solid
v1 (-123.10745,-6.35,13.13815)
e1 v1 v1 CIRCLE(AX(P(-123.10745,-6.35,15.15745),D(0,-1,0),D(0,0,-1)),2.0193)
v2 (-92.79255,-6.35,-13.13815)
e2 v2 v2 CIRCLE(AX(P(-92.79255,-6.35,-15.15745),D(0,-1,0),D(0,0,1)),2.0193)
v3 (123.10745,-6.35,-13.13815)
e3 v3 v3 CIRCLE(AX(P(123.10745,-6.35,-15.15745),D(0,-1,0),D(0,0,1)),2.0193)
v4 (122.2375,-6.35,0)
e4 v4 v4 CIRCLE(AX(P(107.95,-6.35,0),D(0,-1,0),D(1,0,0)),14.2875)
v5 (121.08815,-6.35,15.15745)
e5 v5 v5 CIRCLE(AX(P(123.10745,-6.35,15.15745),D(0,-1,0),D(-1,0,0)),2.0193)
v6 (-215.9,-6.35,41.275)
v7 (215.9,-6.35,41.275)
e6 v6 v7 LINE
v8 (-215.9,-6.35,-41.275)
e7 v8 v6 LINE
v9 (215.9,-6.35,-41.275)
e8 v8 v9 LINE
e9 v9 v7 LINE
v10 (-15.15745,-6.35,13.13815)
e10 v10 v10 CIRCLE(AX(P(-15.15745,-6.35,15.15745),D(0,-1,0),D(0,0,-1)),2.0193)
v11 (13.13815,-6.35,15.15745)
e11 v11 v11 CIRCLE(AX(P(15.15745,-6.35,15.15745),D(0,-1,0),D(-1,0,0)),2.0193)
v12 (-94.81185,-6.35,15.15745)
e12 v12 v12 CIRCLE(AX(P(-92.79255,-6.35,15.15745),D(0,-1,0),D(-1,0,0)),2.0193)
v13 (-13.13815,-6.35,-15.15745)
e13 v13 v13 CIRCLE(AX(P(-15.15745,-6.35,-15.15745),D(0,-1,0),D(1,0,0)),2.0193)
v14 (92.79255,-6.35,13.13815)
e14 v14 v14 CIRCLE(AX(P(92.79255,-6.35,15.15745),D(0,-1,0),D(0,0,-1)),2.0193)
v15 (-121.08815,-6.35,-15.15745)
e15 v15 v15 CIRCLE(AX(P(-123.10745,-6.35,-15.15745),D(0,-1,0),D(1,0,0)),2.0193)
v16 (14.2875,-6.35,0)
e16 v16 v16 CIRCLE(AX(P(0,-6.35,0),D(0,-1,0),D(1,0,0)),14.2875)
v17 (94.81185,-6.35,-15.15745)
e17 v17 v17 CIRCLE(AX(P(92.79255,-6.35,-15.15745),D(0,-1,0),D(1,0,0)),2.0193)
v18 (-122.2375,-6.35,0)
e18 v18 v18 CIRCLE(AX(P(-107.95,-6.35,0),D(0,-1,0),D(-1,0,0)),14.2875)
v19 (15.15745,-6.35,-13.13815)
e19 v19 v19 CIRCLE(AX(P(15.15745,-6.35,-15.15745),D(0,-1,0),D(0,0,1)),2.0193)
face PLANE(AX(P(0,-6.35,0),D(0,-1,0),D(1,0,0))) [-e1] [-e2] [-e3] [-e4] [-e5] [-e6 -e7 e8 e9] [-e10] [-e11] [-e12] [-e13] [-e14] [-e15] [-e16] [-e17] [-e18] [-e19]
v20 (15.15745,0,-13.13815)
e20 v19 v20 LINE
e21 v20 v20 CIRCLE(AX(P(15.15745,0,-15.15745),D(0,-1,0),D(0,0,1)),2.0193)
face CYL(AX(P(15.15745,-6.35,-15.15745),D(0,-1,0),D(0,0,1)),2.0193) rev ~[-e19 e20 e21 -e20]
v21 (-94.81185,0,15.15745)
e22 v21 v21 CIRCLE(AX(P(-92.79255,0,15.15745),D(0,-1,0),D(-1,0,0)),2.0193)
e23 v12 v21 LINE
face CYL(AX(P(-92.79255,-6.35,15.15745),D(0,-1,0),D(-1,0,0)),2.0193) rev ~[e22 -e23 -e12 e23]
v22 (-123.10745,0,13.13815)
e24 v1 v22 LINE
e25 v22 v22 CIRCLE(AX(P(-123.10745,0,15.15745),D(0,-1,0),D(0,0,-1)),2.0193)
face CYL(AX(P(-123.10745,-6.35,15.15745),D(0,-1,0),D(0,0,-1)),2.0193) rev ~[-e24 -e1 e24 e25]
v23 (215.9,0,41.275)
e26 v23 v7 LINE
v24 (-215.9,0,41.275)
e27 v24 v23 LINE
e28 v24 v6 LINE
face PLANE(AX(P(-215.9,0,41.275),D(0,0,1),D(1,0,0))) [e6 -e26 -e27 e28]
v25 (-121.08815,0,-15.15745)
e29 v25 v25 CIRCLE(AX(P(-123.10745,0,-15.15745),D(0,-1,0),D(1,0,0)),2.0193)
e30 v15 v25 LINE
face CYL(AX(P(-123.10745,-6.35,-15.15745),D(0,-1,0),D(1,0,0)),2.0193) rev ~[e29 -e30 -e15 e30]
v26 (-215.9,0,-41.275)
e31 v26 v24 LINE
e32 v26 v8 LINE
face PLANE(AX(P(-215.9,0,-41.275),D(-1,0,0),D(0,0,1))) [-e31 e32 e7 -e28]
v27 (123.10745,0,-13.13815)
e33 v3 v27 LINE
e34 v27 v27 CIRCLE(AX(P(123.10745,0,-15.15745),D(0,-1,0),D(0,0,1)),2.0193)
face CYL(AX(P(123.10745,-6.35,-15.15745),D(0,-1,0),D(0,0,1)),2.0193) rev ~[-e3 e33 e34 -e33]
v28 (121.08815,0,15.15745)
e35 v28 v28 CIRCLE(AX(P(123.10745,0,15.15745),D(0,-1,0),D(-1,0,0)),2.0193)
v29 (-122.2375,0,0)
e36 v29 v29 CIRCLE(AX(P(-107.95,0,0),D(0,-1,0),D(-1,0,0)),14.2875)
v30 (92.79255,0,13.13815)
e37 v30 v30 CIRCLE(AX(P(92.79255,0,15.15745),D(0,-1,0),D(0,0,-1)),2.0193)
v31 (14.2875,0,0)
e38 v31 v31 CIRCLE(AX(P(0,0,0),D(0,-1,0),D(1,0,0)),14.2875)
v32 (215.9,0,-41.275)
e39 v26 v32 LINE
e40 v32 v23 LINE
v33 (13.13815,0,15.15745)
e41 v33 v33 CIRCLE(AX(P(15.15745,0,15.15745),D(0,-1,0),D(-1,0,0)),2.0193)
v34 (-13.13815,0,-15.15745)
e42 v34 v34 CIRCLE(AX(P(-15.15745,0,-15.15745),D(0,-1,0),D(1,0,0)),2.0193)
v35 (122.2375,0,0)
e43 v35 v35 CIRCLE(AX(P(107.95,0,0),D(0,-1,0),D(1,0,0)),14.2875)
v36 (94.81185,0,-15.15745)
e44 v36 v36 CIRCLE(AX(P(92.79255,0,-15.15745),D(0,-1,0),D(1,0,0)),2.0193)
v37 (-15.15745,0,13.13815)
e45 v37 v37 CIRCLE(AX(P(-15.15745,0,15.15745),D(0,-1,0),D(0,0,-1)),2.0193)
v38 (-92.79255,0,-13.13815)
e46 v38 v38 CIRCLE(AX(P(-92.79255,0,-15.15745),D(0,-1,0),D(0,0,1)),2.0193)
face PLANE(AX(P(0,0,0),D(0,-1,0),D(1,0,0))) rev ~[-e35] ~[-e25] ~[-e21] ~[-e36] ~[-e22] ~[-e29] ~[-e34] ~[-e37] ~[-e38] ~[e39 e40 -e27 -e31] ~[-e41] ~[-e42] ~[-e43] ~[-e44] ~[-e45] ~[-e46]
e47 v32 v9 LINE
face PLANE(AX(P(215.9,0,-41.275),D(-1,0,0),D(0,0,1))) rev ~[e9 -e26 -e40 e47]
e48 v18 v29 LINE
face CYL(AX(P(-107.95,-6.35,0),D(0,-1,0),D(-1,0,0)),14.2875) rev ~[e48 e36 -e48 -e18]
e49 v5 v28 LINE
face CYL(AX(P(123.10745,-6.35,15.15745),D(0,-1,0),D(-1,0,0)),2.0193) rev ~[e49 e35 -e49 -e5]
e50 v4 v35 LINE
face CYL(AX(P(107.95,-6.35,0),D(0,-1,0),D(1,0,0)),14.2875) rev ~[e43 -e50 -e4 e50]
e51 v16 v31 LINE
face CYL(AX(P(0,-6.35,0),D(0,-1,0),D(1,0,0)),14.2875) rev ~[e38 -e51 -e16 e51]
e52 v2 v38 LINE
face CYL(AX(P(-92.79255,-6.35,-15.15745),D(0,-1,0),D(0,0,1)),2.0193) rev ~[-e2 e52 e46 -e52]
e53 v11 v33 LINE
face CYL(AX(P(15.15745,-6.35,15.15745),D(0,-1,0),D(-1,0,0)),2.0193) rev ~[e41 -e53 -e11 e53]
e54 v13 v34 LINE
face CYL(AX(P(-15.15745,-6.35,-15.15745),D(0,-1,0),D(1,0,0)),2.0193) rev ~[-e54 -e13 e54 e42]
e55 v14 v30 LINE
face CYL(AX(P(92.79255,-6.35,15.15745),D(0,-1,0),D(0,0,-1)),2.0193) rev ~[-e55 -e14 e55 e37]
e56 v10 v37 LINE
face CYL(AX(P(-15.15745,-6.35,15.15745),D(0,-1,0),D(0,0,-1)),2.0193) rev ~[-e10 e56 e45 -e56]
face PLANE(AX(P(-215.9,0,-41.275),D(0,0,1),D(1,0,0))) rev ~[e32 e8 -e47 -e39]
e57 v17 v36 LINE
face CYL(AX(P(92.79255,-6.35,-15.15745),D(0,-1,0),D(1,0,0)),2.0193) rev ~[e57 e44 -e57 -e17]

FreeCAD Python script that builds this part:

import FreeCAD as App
import Part
import Sketcher

V = App.Vector
Q = App.Units.Quantity


def add_polygon(sketch, points):
    """Adds a closed chain of lines whose ends are joined by coincident constraints."""
    first, n = sketch.GeometryCount, len(points)
    for a, b in zip(points, points[1:] + points[:1]):
        sketch.addGeometry(Part.LineSegment(App.Vector(*a, 0), App.Vector(*b, 0)), False)
    for i in range(n):
        sketch.addConstraint(Sketcher.Constraint("Coincident", first + i, 2, first + (i + 1) % n, 1))

doc = App.newDocument("Part")
body = doc.addObject("PartDesign::Body", "Body")

sketch1 = body.newObject("Sketcher::SketchObject", "Sketch")
sketch1.AttachmentSupport = (doc.getObject("XZ_Plane"), [""])
sketch1.MapMode = "FlatFace"
add_polygon(sketch1, [(-215.9, 41.275), (-215.9, -41.275), (215.9, -41.275), (215.9, 41.275)])
sketch1.addConstraint([
    Sketcher.Constraint("Vertical", 0),
    Sketcher.Constraint("Horizontal", 1),
    Sketcher.Constraint("Vertical", 2),
    Sketcher.Constraint("Horizontal", 3),
    Sketcher.Constraint("Symmetric", 0, 2, 2, 2, -1, 1),
    Sketcher.Constraint("DistanceX", 1, 1, 1, 2, Q("17 in")),
    Sketcher.Constraint("DistanceY", 0, 2, 0, 1, Q("3.25 in")),
])
pad1 = body.newObject("PartDesign::Pad", "Pad")
pad1.Profile = sketch1
pad1.Length = Q("0.25 in")

sketch2 = body.newObject("Sketcher::SketchObject", "Sketch001")
sketch2.AttachmentSupport = (doc.getObject("XZ_Plane"), [""])
sketch2.MapMode = "FlatFace"
sketch2.AttachmentOffset = App.Placement(V(0, 0, 0.25 * 25.4), App.Rotation())
sketch2.addGeometry([
    Part.Circle(V(-107.95, 0, 0), V(0, 0, 1), 14.2875),
    Part.Circle(V(0, 0, 0), V(0, 0, 1), 14.2875),
    Part.Circle(V(107.95, 0, 0), V(0, 0, 1), 14.2875),
], False)
sketch2.addConstraint([
    Sketcher.Constraint("Coincident", 1, 3, -1, 1),
    Sketcher.Constraint("Equal", 0, 1),
    Sketcher.Constraint("Equal", 1, 2),
    Sketcher.Constraint("Symmetric", 0, 3, 2, 3, -1, 1),
    Sketcher.Constraint("PointOnObject", 0, 3, -1),
    Sketcher.Constraint("Diameter", 0, Q("1.125 in")),
    Sketcher.Constraint("DistanceX", 0, 3, 2, 3, Q("8.5 in")),
])
pocket1 = body.newObject("PartDesign::Pocket", "Pocket")
pocket1.Profile = sketch2
pocket1.Type = "ThroughAll"

sketch3 = body.newObject("Sketcher::SketchObject", "Sketch002")
sketch3.AttachmentSupport = (doc.getObject("XZ_Plane"), [""])
sketch3.MapMode = "FlatFace"
sketch3.AttachmentOffset = App.Placement(V(0, 0, 0.25 * 25.4), App.Rotation())
sketch3.addGeometry([
    Part.Circle(V(-92.79255, -15.15745, 0), V(0, 0, 1), 2.0193),
    Part.Circle(V(-92.79255, 15.15745, 0), V(0, 0, 1), 2.0193),
    Part.Circle(V(-123.10745, -15.15745, 0), V(0, 0, 1), 2.0193),
    Part.Circle(V(-123.10745, 15.15745, 0), V(0, 0, 1), 2.0193),
    Part.Circle(V(123.10745, -15.15745, 0), V(0, 0, 1), 2.0193),
    Part.Circle(V(123.10745, 15.15745, 0), V(0, 0, 1), 2.0193),
    Part.Circle(V(92.79255, 15.15745, 0), V(0, 0, 1), 2.0193),
    Part.Circle(V(92.79255, -15.15745, 0), V(0, 0, 1), 2.0193),
    Part.Circle(V(-15.15745, -15.15745, 0), V(0, 0, 1), 2.0193),
    Part.Circle(V(15.15745, -15.15745, 0), V(0, 0, 1), 2.0193),
    Part.Circle(V(15.15745, 15.15745, 0), V(0, 0, 1), 2.0193),
    Part.Circle(V(-15.15745, 15.15745, 0), V(0, 0, 1), 2.0193),
], False)
sketch3.addConstraint([
    Sketcher.Constraint("Equal", 0, 1),
    Sketcher.Constraint("Equal", 1, 2),
    Sketcher.Constraint("Equal", 2, 3),
    Sketcher.Constraint("Equal", 3, 4),
    Sketcher.Constraint("Equal", 4, 5),
    Sketcher.Constraint("Equal", 5, 6),
    Sketcher.Constraint("Equal", 6, 7),
    Sketcher.Constraint("Equal", 7, 8),
    Sketcher.Constraint("Equal", 8, 9),
    Sketcher.Constraint("Equal", 9, 10),
    Sketcher.Constraint("Equal", 10, 11),
    Sketcher.Constraint("Symmetric", 3, 3, 4, 3, -1, 1),
    Sketcher.Constraint("Symmetric", 2, 3, 5, 3, -1, 1),
    Sketcher.Constraint("Symmetric", 0, 3, 6, 3, -1, 1),
    Sketcher.Constraint("Symmetric", 1, 3, 7, 3, -1, 1),
    Sketcher.Constraint("Symmetric", 8, 3, 10, 3, -1, 1),
    Sketcher.Constraint("Symmetric", 9, 3, 11, 3, -1, 1),
    Sketcher.Constraint("Symmetric", 2, 3, 4, 3, -2),
    Sketcher.Constraint("Symmetric", 1, 3, 6, 3, -2),
    Sketcher.Constraint("Symmetric", 8, 3, 9, 3, -2),
    Sketcher.Constraint("Horizontal", 0, 3, 2, 3),
    Sketcher.Constraint("Horizontal", 7, 3, 8, 3),
    Sketcher.Constraint("Diameter", 0, Q("0.159 in")),
    Sketcher.Constraint("DistanceX", 0, 3, 4, 3, Q("8.5 in")),
    Sketcher.Constraint("DistanceX", 2, 3, 8, 3, Q("4.25 in")),
    Sketcher.Constraint("DistanceY", 0, 3, 1, 3, Q("1.1935 in")),
    Sketcher.Constraint("DistanceX", 2, 3, 0, 3, Q("1.1935 in")),
])
pocket2 = body.newObject("PartDesign::Pocket", "Pocket001")
pocket2.Profile = sketch3
pocket2.Type = "ThroughAll"

doc.recompute()
